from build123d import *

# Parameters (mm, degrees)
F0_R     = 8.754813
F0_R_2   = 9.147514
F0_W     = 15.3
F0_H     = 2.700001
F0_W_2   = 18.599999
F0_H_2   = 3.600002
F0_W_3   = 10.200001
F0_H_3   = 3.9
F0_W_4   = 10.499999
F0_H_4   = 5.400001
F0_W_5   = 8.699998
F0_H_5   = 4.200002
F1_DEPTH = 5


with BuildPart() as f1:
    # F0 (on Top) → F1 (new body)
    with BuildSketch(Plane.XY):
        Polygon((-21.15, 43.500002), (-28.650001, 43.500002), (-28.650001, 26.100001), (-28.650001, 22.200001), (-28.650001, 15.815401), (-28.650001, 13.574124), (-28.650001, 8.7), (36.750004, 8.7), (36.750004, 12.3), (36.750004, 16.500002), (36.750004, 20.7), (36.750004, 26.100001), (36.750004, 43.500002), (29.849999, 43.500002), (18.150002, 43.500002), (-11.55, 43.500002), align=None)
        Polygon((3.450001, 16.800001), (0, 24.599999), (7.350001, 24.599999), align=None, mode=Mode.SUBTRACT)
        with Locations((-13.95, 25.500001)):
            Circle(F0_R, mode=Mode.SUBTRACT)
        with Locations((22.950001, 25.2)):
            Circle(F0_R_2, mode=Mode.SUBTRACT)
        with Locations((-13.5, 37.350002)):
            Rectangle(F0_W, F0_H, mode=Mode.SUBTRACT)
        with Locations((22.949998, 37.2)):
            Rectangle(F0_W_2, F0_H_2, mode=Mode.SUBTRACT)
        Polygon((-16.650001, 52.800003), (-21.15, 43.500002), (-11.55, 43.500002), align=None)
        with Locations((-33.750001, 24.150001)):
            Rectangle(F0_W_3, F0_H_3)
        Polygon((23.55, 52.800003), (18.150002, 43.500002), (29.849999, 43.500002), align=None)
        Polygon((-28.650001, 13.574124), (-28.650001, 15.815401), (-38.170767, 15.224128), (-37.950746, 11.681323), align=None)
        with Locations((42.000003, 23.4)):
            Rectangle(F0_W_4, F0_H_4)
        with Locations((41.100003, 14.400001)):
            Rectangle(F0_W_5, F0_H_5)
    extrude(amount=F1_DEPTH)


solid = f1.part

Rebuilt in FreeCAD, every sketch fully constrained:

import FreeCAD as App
import Part
import Sketcher

V = App.Vector
Q = App.Units.Quantity

doc = App.newDocument("Part")
body = doc.addObject("PartDesign::Body", "Body")

# Sketch on XY plane
sketch1 = body.newObject("Sketcher::SketchObject", "Sketch")
sketch1.AttachmentSupport = (doc.getObject("XY_Plane"), [""])
sketch1.MapMode = "FlatFace"
sketch1.addGeometry([
    Part.LineSegment(V(-16.7, 52.8, 0), V(-21.1, 43.5, 0)),  # 0
    Part.LineSegment(V(-21.1, 43.5, 0), V(-28.7, 43.5, 0)),  # 1
    Part.LineSegment(V(-28.7, 43.5, 0), V(-28.7, 26.1, 0)),  # 2
    Part.LineSegment(V(-28.7, 26.1, 0), V(-38.9, 26.1, 0)),  # 3
    Part.LineSegment(V(-38.9, 26.1, 0), V(-38.9, 22.2, 0)),  # 4
    Part.LineSegment(V(-38.9, 22.2, 0), V(-28.7, 22.2, 0)),  # 5
    Part.LineSegment(V(-28.7, 22.2, 0), V(-28.7, 15.8, 0)),  # 6
    Part.LineSegment(V(-28.7, 15.8, 0), V(-38.2, 15.2, 0)),  # 7
    Part.LineSegment(V(-38.2, 15.2, 0), V(-38, 11.7, 0)),  # 8
    Part.LineSegment(V(-38, 11.7, 0), V(-28.7, 13.6, 0)),  # 9
    Part.LineSegment(V(-28.7, 13.6, 0), V(-28.7, 8.7, 0)),  # 10
    Part.LineSegment(V(-28.7, 8.7, 0), V(36.8, 8.7, 0)),  # 11
    Part.LineSegment(V(36.8, 8.7, 0), V(36.8, 12.3, 0)),  # 12
    Part.LineSegment(V(36.8, 12.3, 0), V(45.5, 12.3, 0)),  # 13
    Part.LineSegment(V(45.5, 12.3, 0), V(45.5, 16.5, 0)),  # 14
    Part.LineSegment(V(45.5, 16.5, 0), V(36.8, 16.5, 0)),  # 15
    Part.LineSegment(V(36.8, 16.5, 0), V(36.8, 20.7, 0)),  # 16
    Part.LineSegment(V(36.8, 20.7, 0), V(47.3, 20.7, 0)),  # 17
    Part.LineSegment(V(47.3, 20.7, 0), V(47.3, 26.1, 0)),  # 18
    Part.LineSegment(V(47.3, 26.1, 0), V(36.8, 26.1, 0)),  # 19
    Part.LineSegment(V(36.8, 26.1, 0), V(36.8, 43.5, 0)),  # 20
    Part.LineSegment(V(36.8, 43.5, 0), V(29.8, 43.5, 0)),  # 21
    Part.LineSegment(V(29.8, 43.5, 0), V(23.6, 52.8, 0)),  # 22
    Part.LineSegment(V(23.6, 52.8, 0), V(18.2, 43.5, 0)),  # 23
    Part.LineSegment(V(18.2, 43.5, 0), V(-11.6, 43.5, 0)),  # 24
    Part.LineSegment(V(-11.6, 43.5, 0), V(-16.7, 52.8, 0)),  # 25
    Part.LineSegment(V(7.4, 24.6, 0), V(3.5, 16.8, 0)),  # 26
    Part.LineSegment(V(3.5, 16.8, 0), V(0, 24.6, 0)),  # 27
    Part.LineSegment(V(0, 24.6, 0), V(7.4, 24.6, 0)),  # 28
    Part.Circle(V(-13.9, 25.5, 0), V(0, 0, 1), 8.8),  # 29
    Part.Circle(V(23, 25.2, 0), V(0, 0, 1), 9.1),  # 30
    Part.LineSegment(V(-5.8, 36, 0), V(-21.1, 36, 0)),  # 31
    Part.LineSegment(V(-21.1, 36, 0), V(-21.1, 38.7, 0)),  # 32
    Part.LineSegment(V(-21.1, 38.7, 0), V(-5.8, 38.7, 0)),  # 33
    Part.LineSegment(V(-5.8, 38.7, 0), V(-5.8, 36, 0)),  # 34
    Part.LineSegment(V(32.2, 35.4, 0), V(13.6, 35.4, 0)),  # 35
    Part.LineSegment(V(13.6, 35.4, 0), V(13.6, 39, 0)),  # 36
    Part.LineSegment(V(13.6, 39, 0), V(32.2, 39, 0)),  # 37
    Part.LineSegment(V(32.2, 39, 0), V(32.2, 35.4, 0)),  # 38
], False)
sketch1.addConstraint([
    Sketcher.Constraint("Coincident", 0, 2, 1, 1),
    Sketcher.Constraint("Coincident", 1, 2, 2, 1),
    Sketcher.Constraint("Coincident", 2, 2, 3, 1),
    Sketcher.Constraint("Coincident", 3, 2, 4, 1),
    Sketcher.Constraint("Coincident", 4, 2, 5, 1),
    Sketcher.Constraint("Coincident", 5, 2, 6, 1),
    Sketcher.Constraint("Coincident", 6, 2, 7, 1),
    Sketcher.Constraint("Coincident", 7, 2, 8, 1),
    Sketcher.Constraint("Coincident", 8, 2, 9, 1),
    Sketcher.Constraint("Coincident", 9, 2, 10, 1),
    Sketcher.Constraint("Coincident", 10, 2, 11, 1),
    Sketcher.Constraint("Coincident", 11, 2, 12, 1),
    Sketcher.Constraint("Coincident", 12, 2, 13, 1),
    Sketcher.Constraint("Coincident", 13, 2, 14, 1),
    Sketcher.Constraint("Coincident", 14, 2, 15, 1),
    Sketcher.Constraint("Coincident", 15, 2, 16, 1),
    Sketcher.Constraint("Coincident", 16, 2, 17, 1),
    Sketcher.Constraint("Coincident", 17, 2, 18, 1),
    Sketcher.Constraint("Coincident", 18, 2, 19, 1),
    Sketcher.Constraint("Coincident", 19, 2, 20, 1),
    Sketcher.Constraint("Coincident", 20, 2, 21, 1),
    Sketcher.Constraint("Coincident", 21, 2, 22, 1),
    Sketcher.Constraint("Coincident", 22, 2, 23, 1),
    Sketcher.Constraint("Coincident", 23, 2, 24, 1),
    Sketcher.Constraint("Coincident", 24, 2, 25, 1),
    Sketcher.Constraint("Coincident", 25, 2, 0, 1),
    Sketcher.Constraint("Coincident", 26, 2, 27, 1),
    Sketcher.Constraint("Coincident", 27, 2, 28, 1),
    Sketcher.Constraint("Coincident", 28, 2, 26, 1),
    Sketcher.Constraint("Coincident", 31, 2, 32, 1),
    Sketcher.Constraint("Coincident", 32, 2, 33, 1),
    Sketcher.Constraint("Coincident", 33, 2, 34, 1),
    Sketcher.Constraint("Coincident", 34, 2, 31, 1),
    Sketcher.Constraint("Coincident", 35, 2, 36, 1),
    Sketcher.Constraint("Coincident", 36, 2, 37, 1),
    Sketcher.Constraint("Coincident", 37, 2, 38, 1),
    Sketcher.Constraint("Coincident", 38, 2, 35, 1),
    Sketcher.Constraint("Horizontal", 1),
    Sketcher.Constraint("Vertical", 2),
    Sketcher.Constraint("Horizontal", 3),
    Sketcher.Constraint("Vertical", 4),
    Sketcher.Constraint("Horizontal", 5),
    Sketcher.Constraint("Vertical", 6),
    Sketcher.Constraint("Vertical", 10),
    Sketcher.Constraint("Horizontal", 11),
    Sketcher.Constraint("Vertical", 12),
    Sketcher.Constraint("Horizontal", 13),
    Sketcher.Constraint("Vertical", 14),
    Sketcher.Constraint("Horizontal", 15),
    Sketcher.Constraint("Vertical", 16),
    Sketcher.Constraint("Horizontal", 17),
    Sketcher.Constraint("Vertical", 18),
    Sketcher.Constraint("Horizontal", 19),
    Sketcher.Constraint("Vertical", 20),
    Sketcher.Constraint("Horizontal", 21),
    Sketcher.Constraint("Horizontal", 24),
    Sketcher.Constraint("Horizontal", 28),
    Sketcher.Constraint("Horizontal", 31),
    Sketcher.Constraint("Vertical", 32),
    Sketcher.Constraint("Horizontal", 33),
    Sketcher.Constraint("Vertical", 34),
    Sketcher.Constraint("Horizontal", 35),
    Sketcher.Constraint("Vertical", 36),
    Sketcher.Constraint("Horizontal", 37),
    Sketcher.Constraint("Vertical", 38),
    Sketcher.Constraint("PointOnObject", 27, 2, -2),
    Sketcher.Constraint("Perpendicular", 7, 8),
    Sketcher.Constraint("Horizontal", 3, 2, 18, 2),
    Sketcher.Constraint("Horizontal", 1, 2, 20, 2),
    Sketcher.Constraint("Horizontal", 21, 2, 23, 2),
    Sketcher.Constraint("Horizontal", 22, 2, 25, 2),
    Sketcher.Constraint("Vertical", 2, 2, 5, 2),
    Sketcher.Constraint("Vertical", 6, 2, 9, 2),
    Sketcher.Constraint("Vertical", 12, 2, 15, 2),
    Sketcher.Constraint("Vertical", 16, 2, 19, 2),
    Sketcher.Constraint("Vertical", 0, 2, 31, 2),
    Sketcher.Constraint("Equal", 12, 36),
    Sketcher.Constraint("DistanceX", 1, 2, 1, 1, Q("7.500001 mm")),
    Sketcher.Constraint("DistanceX", 3, 2, 3, 1, Q("10.2 mm")),
    Sketcher.Constraint("DistanceX", 13, 1, 13, 2, Q("8.699998 mm")),
    Sketcher.Constraint("DistanceX", 17, 1, 17, 2, Q("10.499999 mm")),
    Sketcher.Constraint("DistanceX", 31, 2, 31, 1, Q("15.3 mm")),
    Sketcher.Constraint("DistanceX", 35, 2, 35, 1, Q("18.599999 mm")),
    Sketcher.Constraint("DistanceY", 2, 2, 2, 1, Q("17.400001 mm")),
    Sketcher.Constraint("DistanceY", 4, 2, 4, 1, Q("3.9 mm")),
    Sketcher.Constraint("DistanceY", 12, 1, 12, 2, Q("3.6 mm")),
    Sketcher.Constraint("DistanceY", 14, 1, 14, 2, Q("4.200002 mm")),
    Sketcher.Constraint("DistanceY", 18, 1, 18, 2, Q("5.400001 mm")),
    Sketcher.Constraint("DistanceY", 32, 1, 32, 2, Q("2.700001 mm")),
    Sketcher.Constraint("DistanceY", -1, 1, 31, 2, Q("36.000002 mm")),
    Sketcher.Constraint("DistanceY", -1, 1, 36, 2, Q("39.000001 mm")),
    Sketcher.Constraint("DistanceY", 29, 3, 0, 2, Q("18.000001 mm")),
    Sketcher.Constraint("DistanceY", 14, 2, 29, 3, Q("8.999999 mm")),
    Sketcher.Constraint("DistanceX", 1, 2, 25, 2, Q("12 mm")),
    Sketcher.Constraint("DistanceX", 24, 2, 26, 2, Q("15.000001 mm")),
    Sketcher.Constraint("DistanceX", 28, 1, 28, 2, Q("7.350001 mm")),
    Sketcher.Constraint("DistanceY", -1, 1, 29, 3, Q("25.500001 mm")),
    Sketcher.Constraint("DistanceY", -1, 1, 30, 3, Q("25.2 mm")),
    Sketcher.Constraint("DistanceY", -1, 1, 26, 2, Q("16.800001 mm")),
    Sketcher.Constraint("DistanceY", -1, 1, 27, 2, Q("24.599999 mm")),
    Sketcher.Constraint("DistanceX", 29, 3, 30, 3, Q("36.900001 mm")),
    Sketcher.Constraint("DistanceX", 0, 2, 29, 3, Q("7.2 mm")),
    Sketcher.Constraint("DistanceX", 30, 3, 13, 2, Q("22.500001 mm")),
    Sketcher.Constraint("DistanceX", 22, 2, 21, 2, Q("6.299999 mm")),
    Sketcher.Constraint("DistanceY", 21, 2, 22, 2, Q("9.300001 mm")),
    Sketcher.Constraint("DistanceX", 30, 3, 22, 2, Q("0.599999 mm")),
    Sketcher.Constraint("DistanceX", 23, 2, 20, 2, Q("18.600002 mm")),
    Sketcher.Constraint("DistanceX", 0, 2, 24, 2, Q("9.6 mm")),
    Sketcher.Constraint("DistanceX", 26, 2, 28, 2, Q("3.9 mm")),
    Sketcher.Constraint("DistanceX", 35, 2, 21, 2, Q("16.200001 mm")),
    Sketcher.Constraint("Diameter", 29, Q("17.509626 mm")),
    Sketcher.Constraint("Diameter", 30, Q("18.295028 mm")),
    Sketcher.Constraint("DistanceY", 6, 2, 6, 1, Q("6.3846 mm")),
    Sketcher.Constraint("DistanceY", 8, 2, 9, 2, Q("1.892801 mm")),
    Sketcher.Constraint("Distance", 7, Q("9.539108 mm")),
    Sketcher.Constraint("Distance", 8, Q("3.54963 mm")),
    Sketcher.Constraint("DistanceY", 10, 2, 10, 1, Q("4.874124 mm")),
])
pad1 = body.newObject("PartDesign::Pad", "Pad")
pad1.Profile = sketch1
pad1.Length = 5

doc.recompute()
